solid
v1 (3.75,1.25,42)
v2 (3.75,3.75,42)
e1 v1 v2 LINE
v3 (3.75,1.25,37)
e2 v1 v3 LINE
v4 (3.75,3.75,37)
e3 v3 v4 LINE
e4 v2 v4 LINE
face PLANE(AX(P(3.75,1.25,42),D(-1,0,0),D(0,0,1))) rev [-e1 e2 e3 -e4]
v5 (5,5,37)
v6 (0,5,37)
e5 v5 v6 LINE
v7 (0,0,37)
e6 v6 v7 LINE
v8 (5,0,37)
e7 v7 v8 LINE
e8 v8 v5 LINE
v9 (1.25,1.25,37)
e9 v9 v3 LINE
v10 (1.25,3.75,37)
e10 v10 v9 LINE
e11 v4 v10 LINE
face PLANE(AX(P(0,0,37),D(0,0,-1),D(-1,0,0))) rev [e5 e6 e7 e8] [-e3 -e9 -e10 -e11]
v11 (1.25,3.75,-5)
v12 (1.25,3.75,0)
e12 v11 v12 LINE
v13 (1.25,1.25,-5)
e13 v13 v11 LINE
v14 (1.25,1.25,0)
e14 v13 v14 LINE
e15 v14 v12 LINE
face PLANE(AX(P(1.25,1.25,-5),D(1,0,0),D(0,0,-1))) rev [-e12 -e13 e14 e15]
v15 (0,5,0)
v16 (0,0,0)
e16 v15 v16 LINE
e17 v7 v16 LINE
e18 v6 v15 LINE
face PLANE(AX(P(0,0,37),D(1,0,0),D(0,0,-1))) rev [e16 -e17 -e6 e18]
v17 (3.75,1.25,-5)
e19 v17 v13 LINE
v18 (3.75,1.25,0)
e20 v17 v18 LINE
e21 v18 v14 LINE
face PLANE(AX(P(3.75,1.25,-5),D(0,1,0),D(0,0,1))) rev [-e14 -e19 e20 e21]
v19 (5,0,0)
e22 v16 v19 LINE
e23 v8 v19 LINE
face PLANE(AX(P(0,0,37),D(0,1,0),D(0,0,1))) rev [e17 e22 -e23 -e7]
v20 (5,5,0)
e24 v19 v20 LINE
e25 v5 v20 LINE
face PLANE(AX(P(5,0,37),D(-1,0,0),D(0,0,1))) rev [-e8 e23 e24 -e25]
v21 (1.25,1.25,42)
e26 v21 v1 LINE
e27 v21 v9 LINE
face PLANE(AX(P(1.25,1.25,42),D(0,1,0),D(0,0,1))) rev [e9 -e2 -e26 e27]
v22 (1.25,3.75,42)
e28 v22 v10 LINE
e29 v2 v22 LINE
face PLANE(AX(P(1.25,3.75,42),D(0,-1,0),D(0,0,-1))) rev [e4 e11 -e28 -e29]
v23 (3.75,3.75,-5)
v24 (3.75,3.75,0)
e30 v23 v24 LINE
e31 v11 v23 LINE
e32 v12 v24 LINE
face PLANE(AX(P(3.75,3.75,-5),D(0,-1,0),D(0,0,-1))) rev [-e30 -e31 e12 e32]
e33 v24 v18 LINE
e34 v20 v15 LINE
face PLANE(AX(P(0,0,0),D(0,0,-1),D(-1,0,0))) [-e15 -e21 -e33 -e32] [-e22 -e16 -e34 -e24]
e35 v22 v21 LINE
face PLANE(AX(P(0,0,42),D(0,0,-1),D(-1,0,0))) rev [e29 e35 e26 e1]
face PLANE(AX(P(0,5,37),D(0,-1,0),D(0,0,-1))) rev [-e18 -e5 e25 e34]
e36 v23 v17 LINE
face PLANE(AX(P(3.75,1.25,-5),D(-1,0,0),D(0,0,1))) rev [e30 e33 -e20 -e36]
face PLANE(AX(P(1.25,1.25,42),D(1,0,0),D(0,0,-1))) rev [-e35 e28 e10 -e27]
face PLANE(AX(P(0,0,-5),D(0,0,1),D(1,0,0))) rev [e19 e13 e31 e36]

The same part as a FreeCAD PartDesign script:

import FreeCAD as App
import Part
import Sketcher
Q = App.Units.Quantity

doc = App.newDocument("Part")
body = doc.addObject("PartDesign::Body", "Body")

# Sketch on XY plane
sketch1 = body.newObject("Sketcher::SketchObject", "Sketch")
sketch1.AttachmentSupport = (doc.getObject("XY_Plane"), [""])
sketch1.MapMode = "FlatFace"
sketch1.addGeometry([
    Part.LineSegment(App.Vector(0, 5, 0), App.Vector(0, 0, 0)),
    Part.LineSegment(App.Vector(0, 0, 0), App.Vector(5, 0, 0)),
    Part.LineSegment(App.Vector(5, 0, 0), App.Vector(5, 5, 0)),
    Part.LineSegment(App.Vector(5, 5, 0), App.Vector(0, 5, 0)),
], False)
sketch1.addConstraint([
    Sketcher.Constraint("Coincident", 0, 2, 1, 1),
    Sketcher.Constraint("Coincident", 1, 2, 2, 1),
    Sketcher.Constraint("Coincident", 2, 2, 3, 1),
    Sketcher.Constraint("Coincident", 3, 2, 0, 1),
    Sketcher.Constraint("Vertical", 0),
    Sketcher.Constraint("Horizontal", 1),
    Sketcher.Constraint("Vertical", 2),
    Sketcher.Constraint("Horizontal", 3),
    Sketcher.Constraint("Coincident", 0, 2, -1, 1),
    Sketcher.Constraint("Equal", 3, 0),
    Sketcher.Constraint("DistanceX", 1, 1, 1, 2, Q("5 mm")),
])
pad1 = body.newObject("PartDesign::Pad", "Pad")
pad1.Profile = sketch1
pad1.Length = 37

# Sketch on XY plane
sketch2 = body.newObject("Sketcher::SketchObject", "Sketch001")
sketch2.AttachmentSupport = (doc.getObject("XY_Plane"), [""])
sketch2.MapMode = "FlatFace"
sketch2.AttachmentOffset = App.Placement(App.Vector(0, 0, 37), App.Rotation())
sketch2.addGeometry([
    Part.LineSegment(App.Vector(1.2, 3.8, 0), App.Vector(1.2, 1.2, 0)),
    Part.LineSegment(App.Vector(1.2, 1.2, 0), App.Vector(3.8, 1.2, 0)),
    Part.LineSegment(App.Vector(3.8, 1.2, 0), App.Vector(3.8, 3.8, 0)),
    Part.LineSegment(App.Vector(3.8, 3.8, 0), App.Vector(1.2, 3.8, 0)),
], False)
sketch2.addConstraint([
    Sketcher.Constraint("Coincident", 0, 2, 1, 1),
    Sketcher.Constraint("Coincident", 1, 2, 2, 1),
    Sketcher.Constraint("Coincident", 2, 2, 3, 1),
    Sketcher.Constraint("Coincident", 3, 2, 0, 1),
    Sketcher.Constraint("Vertical", 0),
    Sketcher.Constraint("Horizontal", 1),
    Sketcher.Constraint("Vertical", 2),
    Sketcher.Constraint("Horizontal", 3),
    Sketcher.Constraint("Equal", 3, 0),
    Sketcher.Constraint("DistanceX", 1, 1, 1, 2, Q("2.5 mm")),
    Sketcher.Constraint("DistanceX", -1, 1, 0, 2, Q("1.25 mm")),
    Sketcher.Constraint("DistanceY", -1, 1, 0, 2, Q("1.25 mm")),
])
pad2 = body.newObject("PartDesign::Pad", "Pad001")
pad2.Profile = sketch2
pad2.Length = 5

# Sketch on XY plane
sketch3 = body.newObject("Sketcher::SketchObject", "Sketch002")
sketch3.AttachmentSupport = (doc.getObject("XY_Plane"), [""])
sketch3.MapMode = "FlatFace"
sketch3.addGeometry([
    Part.LineSegment(App.Vector(3.8, 3.8, 0), App.Vector(3.8, 1.2, 0)),
    Part.LineSegment(App.Vector(3.8, 1.2, 0), App.Vector(1.2, 1.2, 0)),
    Part.LineSegment(App.Vector(1.2, 1.2, 0), App.Vector(1.2, 3.8, 0)),
    Part.LineSegment(App.Vector(1.2, 3.8, 0), App.Vector(3.8, 3.8, 0)),
], False)
sketch3.addConstraint([
    Sketcher.Constraint("Coincident", 0, 2, 1, 1),
    Sketcher.Constraint("Coincident", 1, 2, 2, 1),
    Sketcher.Constraint("Coincident", 2, 2, 3, 1),
    Sketcher.Constraint("Coincident", 3, 2, 0, 1),
    Sketcher.Constraint("Vertical", 0),
    Sketcher.Constraint("Horizontal", 1),
    Sketcher.Constraint("Vertical", 2),
    Sketcher.Constraint("Horizontal", 3),
    Sketcher.Constraint("Equal", 3, 0),
    Sketcher.Constraint("DistanceX", 1, 2, 1, 1, Q("2.5 mm")),
    Sketcher.Constraint("DistanceX", -1, 1, 0, 2, Q("3.75 mm")),
    Sketcher.Constraint("DistanceY", -1, 1, 0, 2, Q("1.25 mm")),
])
pad3 = body.newObject("PartDesign::Pad", "Pad002")
pad3.Profile = sketch3
pad3.Length = 5
pad3.Reversed = True

doc.recompute()
